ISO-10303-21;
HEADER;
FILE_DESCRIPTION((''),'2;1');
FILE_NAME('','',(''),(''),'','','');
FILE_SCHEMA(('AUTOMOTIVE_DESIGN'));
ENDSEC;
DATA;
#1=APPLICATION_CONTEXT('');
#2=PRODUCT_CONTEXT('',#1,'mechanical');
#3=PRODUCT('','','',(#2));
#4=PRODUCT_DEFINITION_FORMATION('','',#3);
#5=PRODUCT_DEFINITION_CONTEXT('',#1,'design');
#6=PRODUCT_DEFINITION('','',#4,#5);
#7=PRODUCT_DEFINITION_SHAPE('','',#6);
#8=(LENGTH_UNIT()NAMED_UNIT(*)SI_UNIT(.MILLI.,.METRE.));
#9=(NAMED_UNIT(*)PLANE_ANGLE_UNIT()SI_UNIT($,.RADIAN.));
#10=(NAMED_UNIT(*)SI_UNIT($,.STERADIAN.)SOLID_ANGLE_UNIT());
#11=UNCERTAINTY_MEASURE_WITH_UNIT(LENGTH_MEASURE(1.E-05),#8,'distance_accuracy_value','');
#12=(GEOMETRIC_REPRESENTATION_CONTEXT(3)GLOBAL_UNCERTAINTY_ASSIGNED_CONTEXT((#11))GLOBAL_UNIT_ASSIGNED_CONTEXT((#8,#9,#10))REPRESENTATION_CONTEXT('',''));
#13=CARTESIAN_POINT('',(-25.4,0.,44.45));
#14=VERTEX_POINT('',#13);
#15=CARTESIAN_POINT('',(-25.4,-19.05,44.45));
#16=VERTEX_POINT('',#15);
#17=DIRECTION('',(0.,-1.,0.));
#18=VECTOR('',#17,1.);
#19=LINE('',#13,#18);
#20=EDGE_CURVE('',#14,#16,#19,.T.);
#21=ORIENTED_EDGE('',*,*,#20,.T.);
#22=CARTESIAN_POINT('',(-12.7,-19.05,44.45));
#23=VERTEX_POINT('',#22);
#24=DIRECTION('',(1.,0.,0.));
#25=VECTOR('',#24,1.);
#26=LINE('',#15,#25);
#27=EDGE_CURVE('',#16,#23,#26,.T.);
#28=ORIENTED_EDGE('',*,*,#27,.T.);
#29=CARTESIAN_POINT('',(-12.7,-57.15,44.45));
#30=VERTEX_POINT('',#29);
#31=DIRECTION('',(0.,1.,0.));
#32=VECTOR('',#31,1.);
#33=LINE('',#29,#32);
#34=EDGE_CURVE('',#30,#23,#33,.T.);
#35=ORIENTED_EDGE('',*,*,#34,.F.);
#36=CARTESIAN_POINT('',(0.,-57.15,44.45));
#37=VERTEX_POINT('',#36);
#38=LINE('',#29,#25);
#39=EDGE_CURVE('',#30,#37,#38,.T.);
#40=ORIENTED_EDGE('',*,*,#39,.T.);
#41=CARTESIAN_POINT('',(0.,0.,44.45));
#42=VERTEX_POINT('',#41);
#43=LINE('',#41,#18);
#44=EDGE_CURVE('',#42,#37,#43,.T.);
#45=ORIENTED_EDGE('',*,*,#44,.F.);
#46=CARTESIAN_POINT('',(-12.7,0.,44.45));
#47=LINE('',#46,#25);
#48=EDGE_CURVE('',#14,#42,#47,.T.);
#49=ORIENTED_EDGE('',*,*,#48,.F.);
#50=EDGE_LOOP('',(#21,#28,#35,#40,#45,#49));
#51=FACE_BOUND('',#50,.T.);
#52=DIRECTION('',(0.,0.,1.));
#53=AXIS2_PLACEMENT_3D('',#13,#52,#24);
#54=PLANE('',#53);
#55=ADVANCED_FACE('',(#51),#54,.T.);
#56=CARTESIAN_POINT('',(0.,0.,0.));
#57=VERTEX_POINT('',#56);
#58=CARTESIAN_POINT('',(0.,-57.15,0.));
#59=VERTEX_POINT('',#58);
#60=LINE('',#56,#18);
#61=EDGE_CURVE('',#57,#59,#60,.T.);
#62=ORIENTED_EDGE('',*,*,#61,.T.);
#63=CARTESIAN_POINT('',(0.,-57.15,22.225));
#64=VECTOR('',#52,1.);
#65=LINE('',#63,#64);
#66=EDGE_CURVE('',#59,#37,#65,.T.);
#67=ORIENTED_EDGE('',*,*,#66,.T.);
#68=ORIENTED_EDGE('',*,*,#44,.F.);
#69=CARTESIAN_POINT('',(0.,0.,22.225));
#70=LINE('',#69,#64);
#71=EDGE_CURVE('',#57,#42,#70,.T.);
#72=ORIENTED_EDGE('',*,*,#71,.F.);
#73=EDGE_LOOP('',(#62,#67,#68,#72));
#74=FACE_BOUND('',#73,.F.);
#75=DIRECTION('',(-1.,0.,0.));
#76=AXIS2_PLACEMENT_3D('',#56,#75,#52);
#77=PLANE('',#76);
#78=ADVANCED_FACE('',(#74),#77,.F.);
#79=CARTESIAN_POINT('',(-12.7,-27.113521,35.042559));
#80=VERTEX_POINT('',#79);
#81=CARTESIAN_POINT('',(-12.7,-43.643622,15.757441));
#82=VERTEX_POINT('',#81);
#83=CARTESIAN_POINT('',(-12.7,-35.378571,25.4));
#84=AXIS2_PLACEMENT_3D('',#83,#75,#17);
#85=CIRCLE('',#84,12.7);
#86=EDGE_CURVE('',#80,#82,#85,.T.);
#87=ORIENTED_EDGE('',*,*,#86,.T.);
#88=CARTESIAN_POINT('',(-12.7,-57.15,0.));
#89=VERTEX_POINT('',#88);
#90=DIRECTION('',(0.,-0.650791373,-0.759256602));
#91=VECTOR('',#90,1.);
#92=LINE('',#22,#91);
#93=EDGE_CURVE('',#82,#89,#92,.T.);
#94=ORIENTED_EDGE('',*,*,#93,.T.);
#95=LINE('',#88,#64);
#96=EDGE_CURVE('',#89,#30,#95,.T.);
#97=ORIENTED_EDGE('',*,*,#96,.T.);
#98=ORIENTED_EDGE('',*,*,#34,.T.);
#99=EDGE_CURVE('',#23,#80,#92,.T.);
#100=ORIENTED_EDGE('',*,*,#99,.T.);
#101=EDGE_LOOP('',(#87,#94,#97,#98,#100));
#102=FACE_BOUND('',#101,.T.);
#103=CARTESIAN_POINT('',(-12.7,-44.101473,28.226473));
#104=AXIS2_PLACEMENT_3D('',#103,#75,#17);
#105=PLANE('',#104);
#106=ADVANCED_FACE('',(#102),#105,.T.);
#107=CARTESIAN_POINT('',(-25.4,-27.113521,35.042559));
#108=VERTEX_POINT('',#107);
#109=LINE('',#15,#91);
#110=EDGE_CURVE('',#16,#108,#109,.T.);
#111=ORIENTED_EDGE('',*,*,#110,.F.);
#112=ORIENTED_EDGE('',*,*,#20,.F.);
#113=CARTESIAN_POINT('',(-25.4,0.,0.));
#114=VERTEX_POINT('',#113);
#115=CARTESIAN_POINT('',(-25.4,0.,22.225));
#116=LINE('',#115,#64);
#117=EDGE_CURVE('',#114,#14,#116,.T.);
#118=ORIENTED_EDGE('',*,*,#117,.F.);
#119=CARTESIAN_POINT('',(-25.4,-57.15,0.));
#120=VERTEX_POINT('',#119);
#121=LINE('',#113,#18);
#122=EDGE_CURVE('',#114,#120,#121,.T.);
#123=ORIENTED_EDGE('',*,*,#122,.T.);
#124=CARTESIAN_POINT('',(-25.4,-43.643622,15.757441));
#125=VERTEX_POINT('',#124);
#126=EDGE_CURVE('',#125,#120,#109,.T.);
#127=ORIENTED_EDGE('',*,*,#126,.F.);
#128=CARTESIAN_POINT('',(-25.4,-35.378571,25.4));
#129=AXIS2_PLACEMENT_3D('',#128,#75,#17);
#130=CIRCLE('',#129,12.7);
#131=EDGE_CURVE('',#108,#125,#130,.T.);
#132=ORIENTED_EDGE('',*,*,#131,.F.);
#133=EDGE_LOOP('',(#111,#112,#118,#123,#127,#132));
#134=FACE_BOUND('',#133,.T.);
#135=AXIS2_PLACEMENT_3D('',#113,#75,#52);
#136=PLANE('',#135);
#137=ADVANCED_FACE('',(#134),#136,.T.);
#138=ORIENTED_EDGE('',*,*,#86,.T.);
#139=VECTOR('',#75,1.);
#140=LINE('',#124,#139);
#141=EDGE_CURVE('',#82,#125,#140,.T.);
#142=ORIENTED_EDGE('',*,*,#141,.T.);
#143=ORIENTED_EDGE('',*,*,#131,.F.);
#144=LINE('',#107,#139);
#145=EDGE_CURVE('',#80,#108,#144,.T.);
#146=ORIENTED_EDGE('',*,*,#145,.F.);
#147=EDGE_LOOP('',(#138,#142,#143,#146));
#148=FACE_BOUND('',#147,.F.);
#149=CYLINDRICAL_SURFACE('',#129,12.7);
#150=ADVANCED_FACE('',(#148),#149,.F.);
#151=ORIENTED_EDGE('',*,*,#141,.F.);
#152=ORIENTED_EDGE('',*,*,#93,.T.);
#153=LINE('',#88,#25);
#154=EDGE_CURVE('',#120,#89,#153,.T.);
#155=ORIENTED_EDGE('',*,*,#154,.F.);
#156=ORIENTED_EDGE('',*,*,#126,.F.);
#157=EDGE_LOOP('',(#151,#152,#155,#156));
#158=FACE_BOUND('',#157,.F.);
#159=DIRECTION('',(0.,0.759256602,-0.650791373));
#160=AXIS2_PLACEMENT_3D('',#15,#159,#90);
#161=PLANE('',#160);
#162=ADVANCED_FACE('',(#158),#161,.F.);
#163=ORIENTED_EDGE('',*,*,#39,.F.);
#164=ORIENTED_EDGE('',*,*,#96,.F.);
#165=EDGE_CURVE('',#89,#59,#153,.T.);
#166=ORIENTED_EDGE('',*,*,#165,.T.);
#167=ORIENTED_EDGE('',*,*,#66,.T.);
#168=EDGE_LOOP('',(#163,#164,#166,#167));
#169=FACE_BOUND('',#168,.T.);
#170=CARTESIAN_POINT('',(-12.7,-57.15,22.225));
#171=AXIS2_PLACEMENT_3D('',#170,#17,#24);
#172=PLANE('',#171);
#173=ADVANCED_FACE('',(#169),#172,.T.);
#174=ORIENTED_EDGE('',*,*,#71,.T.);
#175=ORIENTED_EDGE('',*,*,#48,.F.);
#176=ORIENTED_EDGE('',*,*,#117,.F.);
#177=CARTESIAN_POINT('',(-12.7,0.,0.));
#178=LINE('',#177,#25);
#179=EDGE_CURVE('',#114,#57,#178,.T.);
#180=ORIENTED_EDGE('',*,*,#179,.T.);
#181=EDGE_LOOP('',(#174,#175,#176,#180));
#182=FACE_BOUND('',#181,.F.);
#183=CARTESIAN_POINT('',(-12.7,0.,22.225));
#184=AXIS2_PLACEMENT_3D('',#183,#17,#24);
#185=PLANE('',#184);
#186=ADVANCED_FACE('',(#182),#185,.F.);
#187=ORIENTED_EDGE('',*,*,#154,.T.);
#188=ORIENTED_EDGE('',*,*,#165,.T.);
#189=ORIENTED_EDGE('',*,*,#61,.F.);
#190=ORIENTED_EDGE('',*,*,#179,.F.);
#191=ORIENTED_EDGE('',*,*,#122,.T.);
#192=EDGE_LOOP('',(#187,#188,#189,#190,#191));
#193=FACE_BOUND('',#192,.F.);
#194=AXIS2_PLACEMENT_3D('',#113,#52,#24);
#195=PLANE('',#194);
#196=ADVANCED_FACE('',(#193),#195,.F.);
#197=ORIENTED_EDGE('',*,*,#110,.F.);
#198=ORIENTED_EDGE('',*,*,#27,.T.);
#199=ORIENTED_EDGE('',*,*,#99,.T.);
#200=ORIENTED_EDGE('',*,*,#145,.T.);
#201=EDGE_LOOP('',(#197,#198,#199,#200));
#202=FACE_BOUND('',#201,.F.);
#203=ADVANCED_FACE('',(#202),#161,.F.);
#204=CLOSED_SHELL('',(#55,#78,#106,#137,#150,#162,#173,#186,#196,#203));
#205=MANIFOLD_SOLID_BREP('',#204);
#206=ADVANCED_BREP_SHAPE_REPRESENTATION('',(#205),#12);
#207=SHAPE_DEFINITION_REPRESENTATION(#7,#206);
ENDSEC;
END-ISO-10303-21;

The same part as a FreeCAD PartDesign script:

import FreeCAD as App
import Part
import Sketcher
Q = App.Units.Quantity

doc = App.newDocument("Part")
body = doc.addObject("PartDesign::Body", "Body")

# Sketch on XZ plane
sketch1 = doc.addObject("Sketcher::SketchObject", "Sketch")
body.addObject(sketch1)
sketch1.AttachmentSupport = (doc.XZ_Plane, [""])
sketch1.MapMode = "FlatFace"
sketch1.addGeometry([
    Part.LineSegment(App.Vector(-25, 44, 0), App.Vector(-25, 0, 0)),
    Part.LineSegment(App.Vector(-25, 0, 0), App.Vector(0, 0, 0)),
    Part.LineSegment(App.Vector(0, 0, 0), App.Vector(0, 44, 0)),
    Part.LineSegment(App.Vector(0, 44, 0), App.Vector(-25, 44, 0)),
], False)
sketch1.addConstraint([
    Sketcher.Constraint("Coincident", 0, 2, 1, 1),
    Sketcher.Constraint("Coincident", 1, 2, 2, 1),
    Sketcher.Constraint("Coincident", 2, 2, 3, 1),
    Sketcher.Constraint("Coincident", 3, 2, 0, 1),
    Sketcher.Constraint("Vertical", 0),
    Sketcher.Constraint("Horizontal", 1),
    Sketcher.Constraint("Vertical", 2),
    Sketcher.Constraint("Horizontal", 3),
    Sketcher.Constraint("Coincident", 1, 2, -1, 1),
    Sketcher.Constraint("DistanceX", 1, 1, 1, 2, Q("1 in")),
    Sketcher.Constraint("DistanceY", 0, 2, 0, 1, Q("1.75 in")),
])
pad1 = doc.addObject("PartDesign::Pad", "Pad")
body.addObject(pad1)
pad1.Profile = sketch1
pad1.Length = Q("2.25 in")

# Sketch on YZ plane
sketch2 = doc.addObject("Sketcher::SketchObject", "Sketch001")
body.addObject(sketch2)
sketch2.AttachmentSupport = (doc.YZ_Plane, [""])
sketch2.MapMode = "FlatFace"
sketch2.AttachmentOffset = App.Placement(App.Vector(0, 0, -1 * 25.4), App.Rotation())
sketch2.addGeometry([
    Part.LineSegment(App.Vector(-57, 44, 0), App.Vector(-19, 44, 0)),
    Part.LineSegment(App.Vector(-19, 44, 0), App.Vector(-57, 0, 0)),
    Part.LineSegment(App.Vector(-57, 0, 0), App.Vector(-57, 44, 0)),
], False)
sketch2.addConstraint([
    Sketcher.Constraint("Coincident", 0, 2, 1, 1),
    Sketcher.Constraint("Coincident", 1, 2, 2, 1),
    Sketcher.Constraint("Coincident", 2, 2, 0, 1),
    Sketcher.Constraint("Horizontal", 0),
    Sketcher.Constraint("Vertical", 2),
    Sketcher.Constraint("PointOnObject", 1, 2, -1),
    Sketcher.Constraint("DistanceX", 0, 1, 0, 2, Q("1.5 in")),
    Sketcher.Constraint("DistanceY", 2, 1, 2, 2, Q("1.75 in")),
    Sketcher.Constraint("DistanceX", 0, 2, -1, 1, Q("0.75 in")),
])
pocket1 = doc.addObject("PartDesign::Pocket", "Pocket")
body.addObject(pocket1)
pocket1.Profile = sketch2
pocket1.Length = Q("0.5 in")
pocket1.Reversed = True

# Sketch on YZ plane
sketch3 = doc.addObject("Sketcher::SketchObject", "Sketch002")
body.addObject(sketch3)
sketch3.AttachmentSupport = (doc.YZ_Plane, [""])
sketch3.MapMode = "FlatFace"
sketch3.AttachmentOffset = App.Placement(App.Vector(0, 0, -1 * 25.4), App.Rotation())
sketch3.addGeometry(Part.Circle(App.Vector(-35, 25, 0), App.Vector(0, 0, 1), 13), False)
sketch3.addConstraint([
    Sketcher.Constraint("Diameter", 0, Q("1 in")),
    Sketcher.Constraint("DistanceY", -1, 1, 0, 3, Q("1 in")),
    Sketcher.Constraint("DistanceX", 0, 3, -1, 1, Q("35.378571 mm")),
])
pocket2 = doc.addObject("PartDesign::Pocket", "Pocket001")
body.addObject(pocket2)
pocket2.Profile = sketch3
pocket2.Length = Q("0.5 in")
pocket2.Reversed = True

doc.recompute()
